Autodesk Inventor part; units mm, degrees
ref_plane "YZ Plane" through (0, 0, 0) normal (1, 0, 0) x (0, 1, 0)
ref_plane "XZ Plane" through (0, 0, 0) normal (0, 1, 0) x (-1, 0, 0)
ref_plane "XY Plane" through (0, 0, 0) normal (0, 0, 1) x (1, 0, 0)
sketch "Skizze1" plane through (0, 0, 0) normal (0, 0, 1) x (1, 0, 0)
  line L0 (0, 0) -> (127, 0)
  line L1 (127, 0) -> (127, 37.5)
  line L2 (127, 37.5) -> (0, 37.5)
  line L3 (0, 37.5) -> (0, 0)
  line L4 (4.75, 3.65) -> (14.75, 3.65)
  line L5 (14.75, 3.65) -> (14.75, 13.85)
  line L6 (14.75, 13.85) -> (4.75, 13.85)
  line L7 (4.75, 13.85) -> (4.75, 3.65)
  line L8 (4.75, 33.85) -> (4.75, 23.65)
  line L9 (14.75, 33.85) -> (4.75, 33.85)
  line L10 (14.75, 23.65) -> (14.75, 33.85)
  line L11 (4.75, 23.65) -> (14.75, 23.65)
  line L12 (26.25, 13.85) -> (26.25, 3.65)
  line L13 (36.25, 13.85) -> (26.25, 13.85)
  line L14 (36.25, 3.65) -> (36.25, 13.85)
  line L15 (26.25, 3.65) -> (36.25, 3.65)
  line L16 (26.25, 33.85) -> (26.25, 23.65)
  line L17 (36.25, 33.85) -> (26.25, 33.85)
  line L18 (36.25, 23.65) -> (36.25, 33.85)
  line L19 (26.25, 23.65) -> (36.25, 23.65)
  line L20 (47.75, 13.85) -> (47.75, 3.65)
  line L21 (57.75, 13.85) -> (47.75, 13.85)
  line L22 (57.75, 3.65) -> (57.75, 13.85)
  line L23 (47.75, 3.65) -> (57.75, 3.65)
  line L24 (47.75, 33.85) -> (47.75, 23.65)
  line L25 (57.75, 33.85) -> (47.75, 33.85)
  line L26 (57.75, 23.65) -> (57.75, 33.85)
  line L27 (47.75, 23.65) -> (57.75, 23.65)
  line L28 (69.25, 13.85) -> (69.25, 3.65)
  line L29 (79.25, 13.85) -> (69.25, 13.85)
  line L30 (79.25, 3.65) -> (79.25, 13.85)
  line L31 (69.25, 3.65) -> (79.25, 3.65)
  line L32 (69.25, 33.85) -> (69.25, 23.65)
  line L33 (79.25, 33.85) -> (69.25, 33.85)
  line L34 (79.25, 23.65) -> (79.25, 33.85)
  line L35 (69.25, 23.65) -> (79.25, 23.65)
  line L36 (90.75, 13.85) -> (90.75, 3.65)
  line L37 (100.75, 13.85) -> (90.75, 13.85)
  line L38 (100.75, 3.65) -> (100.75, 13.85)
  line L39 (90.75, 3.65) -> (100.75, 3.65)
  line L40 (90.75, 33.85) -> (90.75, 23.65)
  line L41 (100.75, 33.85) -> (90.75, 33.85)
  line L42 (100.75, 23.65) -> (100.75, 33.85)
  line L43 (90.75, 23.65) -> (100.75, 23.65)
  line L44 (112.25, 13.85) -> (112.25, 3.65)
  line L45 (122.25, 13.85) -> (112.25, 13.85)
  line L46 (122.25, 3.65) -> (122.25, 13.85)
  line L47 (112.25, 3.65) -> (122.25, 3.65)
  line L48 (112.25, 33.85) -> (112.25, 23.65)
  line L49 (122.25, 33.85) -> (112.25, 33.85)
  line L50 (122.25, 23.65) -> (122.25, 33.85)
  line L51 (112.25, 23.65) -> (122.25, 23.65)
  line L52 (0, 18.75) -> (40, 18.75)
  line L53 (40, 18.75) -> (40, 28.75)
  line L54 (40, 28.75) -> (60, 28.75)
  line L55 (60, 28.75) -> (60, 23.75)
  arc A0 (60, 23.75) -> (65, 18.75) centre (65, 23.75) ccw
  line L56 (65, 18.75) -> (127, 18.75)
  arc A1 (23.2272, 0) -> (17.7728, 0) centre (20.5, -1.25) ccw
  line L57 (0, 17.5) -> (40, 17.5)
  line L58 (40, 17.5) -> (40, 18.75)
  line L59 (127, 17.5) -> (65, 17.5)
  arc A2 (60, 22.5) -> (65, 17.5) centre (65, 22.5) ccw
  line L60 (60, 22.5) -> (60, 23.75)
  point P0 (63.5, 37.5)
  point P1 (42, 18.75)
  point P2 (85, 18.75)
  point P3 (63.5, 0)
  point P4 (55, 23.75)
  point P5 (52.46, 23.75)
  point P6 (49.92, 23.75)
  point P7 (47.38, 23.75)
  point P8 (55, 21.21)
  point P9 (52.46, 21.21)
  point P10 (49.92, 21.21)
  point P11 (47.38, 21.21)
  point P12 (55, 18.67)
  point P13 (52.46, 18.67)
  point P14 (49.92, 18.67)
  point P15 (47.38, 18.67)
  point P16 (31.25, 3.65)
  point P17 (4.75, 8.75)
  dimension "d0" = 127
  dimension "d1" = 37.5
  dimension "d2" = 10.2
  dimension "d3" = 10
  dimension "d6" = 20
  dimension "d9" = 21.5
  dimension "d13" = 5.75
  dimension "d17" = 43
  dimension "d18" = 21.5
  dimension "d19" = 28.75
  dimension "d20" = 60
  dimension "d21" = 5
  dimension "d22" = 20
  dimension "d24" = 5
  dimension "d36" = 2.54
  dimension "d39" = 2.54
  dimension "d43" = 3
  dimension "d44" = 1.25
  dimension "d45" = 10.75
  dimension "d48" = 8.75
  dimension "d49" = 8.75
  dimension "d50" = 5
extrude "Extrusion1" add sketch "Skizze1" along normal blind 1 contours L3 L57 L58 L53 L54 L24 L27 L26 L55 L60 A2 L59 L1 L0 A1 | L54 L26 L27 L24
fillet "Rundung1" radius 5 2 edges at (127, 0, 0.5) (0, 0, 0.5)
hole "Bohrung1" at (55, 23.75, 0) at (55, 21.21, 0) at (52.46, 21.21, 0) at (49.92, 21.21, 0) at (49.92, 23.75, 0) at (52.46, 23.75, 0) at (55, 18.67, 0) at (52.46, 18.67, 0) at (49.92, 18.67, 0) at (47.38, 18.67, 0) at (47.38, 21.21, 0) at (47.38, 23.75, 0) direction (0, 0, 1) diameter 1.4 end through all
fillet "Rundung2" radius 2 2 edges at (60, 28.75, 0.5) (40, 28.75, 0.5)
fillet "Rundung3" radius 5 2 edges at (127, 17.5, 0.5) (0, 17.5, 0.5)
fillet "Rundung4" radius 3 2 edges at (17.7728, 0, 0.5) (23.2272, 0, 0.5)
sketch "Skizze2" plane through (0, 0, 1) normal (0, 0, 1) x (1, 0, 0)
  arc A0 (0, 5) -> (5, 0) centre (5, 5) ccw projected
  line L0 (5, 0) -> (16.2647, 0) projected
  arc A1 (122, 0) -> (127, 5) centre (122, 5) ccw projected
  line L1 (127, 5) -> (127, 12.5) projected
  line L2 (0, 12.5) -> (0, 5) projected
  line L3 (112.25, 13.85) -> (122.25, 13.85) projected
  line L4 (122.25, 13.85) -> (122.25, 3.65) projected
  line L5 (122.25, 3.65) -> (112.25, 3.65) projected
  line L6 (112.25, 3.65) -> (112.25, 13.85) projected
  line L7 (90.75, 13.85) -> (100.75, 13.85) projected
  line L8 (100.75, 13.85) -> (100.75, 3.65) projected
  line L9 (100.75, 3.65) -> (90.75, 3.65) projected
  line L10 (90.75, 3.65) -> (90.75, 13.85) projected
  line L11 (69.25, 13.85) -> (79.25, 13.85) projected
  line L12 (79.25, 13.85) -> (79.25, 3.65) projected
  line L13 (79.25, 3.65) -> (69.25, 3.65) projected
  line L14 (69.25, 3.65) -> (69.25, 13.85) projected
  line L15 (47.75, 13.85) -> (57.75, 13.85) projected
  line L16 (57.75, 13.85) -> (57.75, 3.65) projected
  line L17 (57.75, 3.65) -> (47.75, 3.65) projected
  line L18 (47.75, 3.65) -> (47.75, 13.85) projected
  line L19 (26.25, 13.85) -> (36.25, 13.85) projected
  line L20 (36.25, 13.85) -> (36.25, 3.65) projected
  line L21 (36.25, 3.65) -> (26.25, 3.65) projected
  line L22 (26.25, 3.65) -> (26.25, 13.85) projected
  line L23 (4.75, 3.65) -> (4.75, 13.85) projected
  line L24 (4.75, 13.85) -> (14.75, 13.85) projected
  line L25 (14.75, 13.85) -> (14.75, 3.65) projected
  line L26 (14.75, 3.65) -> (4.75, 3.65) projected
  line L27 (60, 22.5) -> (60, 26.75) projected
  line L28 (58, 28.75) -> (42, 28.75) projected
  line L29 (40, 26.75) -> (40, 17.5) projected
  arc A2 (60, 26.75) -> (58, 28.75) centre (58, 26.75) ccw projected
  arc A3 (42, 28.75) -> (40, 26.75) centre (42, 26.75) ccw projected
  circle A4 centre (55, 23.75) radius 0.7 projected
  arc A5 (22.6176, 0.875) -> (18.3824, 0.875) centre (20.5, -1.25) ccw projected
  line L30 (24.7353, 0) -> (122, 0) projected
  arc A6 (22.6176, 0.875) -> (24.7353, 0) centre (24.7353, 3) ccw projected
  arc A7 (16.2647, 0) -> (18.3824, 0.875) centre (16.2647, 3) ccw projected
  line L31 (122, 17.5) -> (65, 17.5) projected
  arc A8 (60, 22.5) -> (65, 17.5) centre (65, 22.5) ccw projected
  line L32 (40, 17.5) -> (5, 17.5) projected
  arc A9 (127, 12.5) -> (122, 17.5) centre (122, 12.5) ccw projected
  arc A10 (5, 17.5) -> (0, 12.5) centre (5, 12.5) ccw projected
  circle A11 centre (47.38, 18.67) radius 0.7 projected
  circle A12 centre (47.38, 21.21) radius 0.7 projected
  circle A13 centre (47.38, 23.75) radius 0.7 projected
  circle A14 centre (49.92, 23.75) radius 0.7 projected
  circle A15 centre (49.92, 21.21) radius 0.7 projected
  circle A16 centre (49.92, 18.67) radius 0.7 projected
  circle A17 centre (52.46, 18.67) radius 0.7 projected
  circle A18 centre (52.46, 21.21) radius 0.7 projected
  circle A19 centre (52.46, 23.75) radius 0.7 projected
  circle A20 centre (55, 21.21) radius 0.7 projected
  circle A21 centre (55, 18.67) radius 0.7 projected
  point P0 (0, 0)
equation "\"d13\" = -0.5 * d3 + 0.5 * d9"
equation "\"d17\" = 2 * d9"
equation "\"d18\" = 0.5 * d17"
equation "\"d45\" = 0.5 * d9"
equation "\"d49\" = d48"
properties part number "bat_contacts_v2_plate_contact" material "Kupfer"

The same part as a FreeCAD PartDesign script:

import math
import FreeCAD as App
import Part
import Sketcher
from FreeCAD import Vector
Q = App.Units.Quantity


def edges_at(feature, points):
    """Names of the edges that pass closest to the given points."""
    edges = feature.Shape.Edges
    near = lambda p: min(range(len(edges)), key=lambda i: edges[i].distToShape(Part.Vertex(*p))[0])
    return sorted({f"Edge{near(p) + 1}" for p in points})

doc = App.newDocument("Part")
params = doc.addObject("Spreadsheet::Sheet", "Params")
for row, (alias, value) in enumerate([
    ("sketch1_radius", "3 mm"),
    ("sketch1_radius2", "5 mm"),
    ("sketch1_width", "20 mm"),
    ("sketch1_width2", "10 mm"),
    ("sketch1_height", "10.2 mm"),
    ("pad1_length", "1 mm"),
    ("fillet_radius", "5 mm"),
    ("sketch2_diameter", "1.4 mm"),
    ("hole_diameter", "1.4 mm"),
    ("fillet2_radius", "2 mm"),
    ("fillet3_radius", "5 mm"),
    ("fillet4_radius", "3 mm"),
], start=1):
    params.set(f"A{row}", alias)
    params.set(f"B{row}", "=" + value)
    params.setAlias(f"B{row}", alias)

body = doc.addObject("PartDesign::Body", "Body")

# Sketch on XY plane
sketch1 = doc.addObject("Sketcher::SketchObject", "Sketch")
body.addObject(sketch1)
sketch1.AttachmentSupport = (doc.XY_Plane, [""])
sketch1.MapMode = "FlatFace"
sketch1.addGeometry([
    Part.LineSegment(Vector(0, 17.5, 0), Vector(0, 0, 0)),  # 0
    Part.LineSegment(Vector(0, 0, 0), Vector(17.7728, 0, 0)),  # 1
    Part.ArcOfCircle(Part.Circle(Vector(20.5, -1.25, 0), Vector(0, 0, 1), 3.00002), math.radians(24.624144), math.radians(155.375856)),  # 2
    Part.LineSegment(Vector(23.2272, 0, 0), Vector(127, 0, 0)),  # 3
    Part.LineSegment(Vector(127, 0, 0), Vector(127, 17.5, 0)),  # 4
    Part.LineSegment(Vector(127, 17.5, 0), Vector(65, 17.5, 0)),  # 5
    Part.ArcOfCircle(Part.Circle(Vector(65, 22.5, 0), Vector(0, 0, 1), 5), math.radians(180), math.radians(270)),  # 6
    Part.LineSegment(Vector(60, 22.5, 0), Vector(60, 28.75, 0)),  # 7
    Part.LineSegment(Vector(60, 28.75, 0), Vector(40, 28.75, 0)),  # 8
    Part.LineSegment(Vector(40, 28.75, 0), Vector(40, 17.5, 0)),  # 9
    Part.LineSegment(Vector(40, 17.5, 0), Vector(0, 17.5, 0)),  # 10
    Part.LineSegment(Vector(14.75, 3.65, 0), Vector(4.75, 3.65, 0)),  # 11
    Part.LineSegment(Vector(4.75, 3.65, 0), Vector(4.75, 13.85, 0)),  # 12
    Part.LineSegment(Vector(4.75, 13.85, 0), Vector(14.75, 13.85, 0)),  # 13
    Part.LineSegment(Vector(14.75, 13.85, 0), Vector(14.75, 3.65, 0)),  # 14
    Part.LineSegment(Vector(26.25, 3.65, 0), Vector(26.25, 13.85, 0)),  # 15
    Part.LineSegment(Vector(26.25, 13.85, 0), Vector(36.25, 13.85, 0)),  # 16
    Part.LineSegment(Vector(36.25, 13.85, 0), Vector(36.25, 3.65, 0)),  # 17
    Part.LineSegment(Vector(36.25, 3.65, 0), Vector(26.25, 3.65, 0)),  # 18
    Part.LineSegment(Vector(47.75, 3.65, 0), Vector(47.75, 13.85, 0)),  # 19
    Part.LineSegment(Vector(47.75, 13.85, 0), Vector(57.75, 13.85, 0)),  # 20
    Part.LineSegment(Vector(57.75, 13.85, 0), Vector(57.75, 3.65, 0)),  # 21
    Part.LineSegment(Vector(57.75, 3.65, 0), Vector(47.75, 3.65, 0)),  # 22
    Part.LineSegment(Vector(69.25, 3.65, 0), Vector(69.25, 13.85, 0)),  # 23
    Part.LineSegment(Vector(69.25, 13.85, 0), Vector(79.25, 13.85, 0)),  # 24
    Part.LineSegment(Vector(79.25, 13.85, 0), Vector(79.25, 3.65, 0)),  # 25
    Part.LineSegment(Vector(79.25, 3.65, 0), Vector(69.25, 3.65, 0)),  # 26
    Part.LineSegment(Vector(90.75, 3.65, 0), Vector(90.75, 13.85, 0)),  # 27
    Part.LineSegment(Vector(90.75, 13.85, 0), Vector(100.75, 13.85, 0)),  # 28
    Part.LineSegment(Vector(100.75, 13.85, 0), Vector(100.75, 3.65, 0)),  # 29
    Part.LineSegment(Vector(100.75, 3.65, 0), Vector(90.75, 3.65, 0)),  # 30
    Part.LineSegment(Vector(112.25, 3.65, 0), Vector(112.25, 13.85, 0)),  # 31
    Part.LineSegment(Vector(112.25, 13.85, 0), Vector(122.25, 13.85, 0)),  # 32
    Part.LineSegment(Vector(122.25, 13.85, 0), Vector(122.25, 3.65, 0)),  # 33
    Part.LineSegment(Vector(122.25, 3.65, 0), Vector(112.25, 3.65, 0)),  # 34
], False)
sketch1.addConstraint([
    Sketcher.Constraint("Coincident", 0, 2, 1, 1),
    Sketcher.Constraint("Coincident", 1, 2, 2, 2),
    Sketcher.Constraint("Coincident", 2, 1, 3, 1),
    Sketcher.Constraint("Coincident", 3, 2, 4, 1),
    Sketcher.Constraint("Coincident", 4, 2, 5, 1),
    Sketcher.Constraint("Tangent", 5, 2, 6, 2),
    Sketcher.Constraint("Tangent", 6, 1, 7, 1),
    Sketcher.Constraint("Coincident", 7, 2, 8, 1),
    Sketcher.Constraint("Coincident", 8, 2, 9, 1),
    Sketcher.Constraint("Coincident", 9, 2, 10, 1),
    Sketcher.Constraint("Coincident", 10, 2, 0, 1),
    Sketcher.Constraint("Coincident", 11, 2, 12, 1),
    Sketcher.Constraint("Coincident", 12, 2, 13, 1),
    Sketcher.Constraint("Coincident", 13, 2, 14, 1),
    Sketcher.Constraint("Coincident", 14, 2, 11, 1),
    Sketcher.Constraint("Coincident", 15, 2, 16, 1),
    Sketcher.Constraint("Coincident", 16, 2, 17, 1),
    Sketcher.Constraint("Coincident", 17, 2, 18, 1),
    Sketcher.Constraint("Coincident", 18, 2, 15, 1),
    Sketcher.Constraint("Coincident", 19, 2, 20, 1),
    Sketcher.Constraint("Coincident", 20, 2, 21, 1),
    Sketcher.Constraint("Coincident", 21, 2, 22, 1),
    Sketcher.Constraint("Coincident", 22, 2, 19, 1),
    Sketcher.Constraint("Coincident", 23, 2, 24, 1),
    Sketcher.Constraint("Coincident", 24, 2, 25, 1),
    Sketcher.Constraint("Coincident", 25, 2, 26, 1),
    Sketcher.Constraint("Coincident", 26, 2, 23, 1),
    Sketcher.Constraint("Coincident", 27, 2, 28, 1),
    Sketcher.Constraint("Coincident", 28, 2, 29, 1),
    Sketcher.Constraint("Coincident", 29, 2, 30, 1),
    Sketcher.Constraint("Coincident", 30, 2, 27, 1),
    Sketcher.Constraint("Coincident", 31, 2, 32, 1),
    Sketcher.Constraint("Coincident", 32, 2, 33, 1),
    Sketcher.Constraint("Coincident", 33, 2, 34, 1),
    Sketcher.Constraint("Coincident", 34, 2, 31, 1),
    Sketcher.Constraint("Vertical", 0),
    Sketcher.Constraint("Horizontal", 1),
    Sketcher.Constraint("Horizontal", 3),
    Sketcher.Constraint("Vertical", 4),
    Sketcher.Constraint("Horizontal", 5),
    Sketcher.Constraint("Vertical", 7),
    Sketcher.Constraint("Horizontal", 8),
    Sketcher.Constraint("Vertical", 9),
    Sketcher.Constraint("Horizontal", 10),
    Sketcher.Constraint("Horizontal", 11),
    Sketcher.Constraint("Vertical", 12),
    Sketcher.Constraint("Horizontal", 13),
    Sketcher.Constraint("Vertical", 14),
    Sketcher.Constraint("Vertical", 15),
    Sketcher.Constraint("Horizontal", 16),
    Sketcher.Constraint("Vertical", 17),
    Sketcher.Constraint("Horizontal", 18),
    Sketcher.Constraint("Vertical", 19),
    Sketcher.Constraint("Horizontal", 20),
    Sketcher.Constraint("Vertical", 21),
    Sketcher.Constraint("Horizontal", 22),
    Sketcher.Constraint("Vertical", 23),
    Sketcher.Constraint("Horizontal", 24),
    Sketcher.Constraint("Vertical", 25),
    Sketcher.Constraint("Horizontal", 26),
    Sketcher.Constraint("Vertical", 27),
    Sketcher.Constraint("Horizontal", 28),
    Sketcher.Constraint("Vertical", 29),
    Sketcher.Constraint("Horizontal", 30),
    Sketcher.Constraint("Vertical", 31),
    Sketcher.Constraint("Horizontal", 32),
    Sketcher.Constraint("Vertical", 33),
    Sketcher.Constraint("Horizontal", 34),
    Sketcher.Constraint("Coincident", 0, 2, -1, 1),
    Sketcher.Constraint("PointOnObject", 2, 1, -1),
    Sketcher.Constraint("Horizontal", 5, 2, 9, 2),
    Sketcher.Constraint("Horizontal", 13, 2, 15, 2),
    Sketcher.Constraint("Horizontal", 14, 2, 17, 2),
    Sketcher.Constraint("Horizontal", 16, 2, 19, 2),
    Sketcher.Constraint("Horizontal", 18, 2, 21, 2),
    Sketcher.Constraint("Horizontal", 20, 2, 23, 2),
    Sketcher.Constraint("Horizontal", 22, 2, 25, 2),
    Sketcher.Constraint("Horizontal", 24, 2, 27, 2),
    Sketcher.Constraint("Horizontal", 26, 2, 29, 2),
    Sketcher.Constraint("Horizontal", 28, 2, 31, 2),
    Sketcher.Constraint("Horizontal", 30, 2, 33, 2),
    Sketcher.Constraint("Equal", 13, 16),
    Sketcher.Constraint("Equal", 18, 20),
    Sketcher.Constraint("Equal", 22, 24),
    Sketcher.Constraint("Equal", 26, 28),
    Sketcher.Constraint("Equal", 30, 32),
    Sketcher.Constraint("Radius", 2, Q("3 mm")),
    Sketcher.Constraint("Radius", 6, Q("5 mm")),
    Sketcher.Constraint("DistanceX", 8, 2, 8, 1, Q("20 mm")),
    Sketcher.Constraint("DistanceX", 11, 2, 11, 1, Q("10 mm")),
    Sketcher.Constraint("DistanceY", 12, 1, 12, 2, Q("10.2 mm")),
    Sketcher.Constraint("DistanceX", -1, 1, 3, 2, Q("127 mm")),
    Sketcher.Constraint("DistanceX", -1, 1, 6, 1, Q("60 mm")),
    Sketcher.Constraint("DistanceX", 13, 2, 16, 2, Q("21.5 mm")),
    Sketcher.Constraint("DistanceX", 20, 2, 24, 2, Q("21.5 mm")),
    Sketcher.Constraint("DistanceX", 23, 2, 27, 2, Q("21.5 mm")),
    Sketcher.Constraint("DistanceX", 27, 2, 31, 2, Q("21.5 mm")),
    Sketcher.Constraint("DistanceY", 2, 3, -1, 1, Q("1.25 mm")),
    Sketcher.Constraint("DistanceY", -1, 1, 7, 2, Q("28.75 mm")),
    Sketcher.Constraint("DistanceX", 13, 2, 2, 3, Q("5.75 mm")),
    Sketcher.Constraint("DistanceY", 0, 2, 0, 1, Q("17.5 mm")),
    Sketcher.Constraint("DistanceX", -1, 1, 2, 3, Q("20.5 mm")),
    Sketcher.Constraint("DistanceY", 2, 3, 11, 2, Q("4.9 mm")),
    Sketcher.Constraint("DistanceX", 16, 2, 19, 2, Q("11.5 mm")),
])
sketch1.setExpression("Constraints[86]", "Params.sketch1_radius")
sketch1.setExpression("Constraints[87]", "Params.sketch1_radius2")
sketch1.setExpression("Constraints[88]", "Params.sketch1_width")
sketch1.setExpression("Constraints[89]", "Params.sketch1_width2")
sketch1.setExpression("Constraints[90]", "Params.sketch1_height")
pad1 = doc.addObject("PartDesign::Pad", "Pad")
body.addObject(pad1)
pad1.Profile = sketch1
pad1.setExpression("Length", "Params.pad1_length")
doc.recompute()

fillet = doc.addObject("PartDesign::Fillet", "Fillet")
body.addObject(fillet)
fillet.Base = (pad1, edges_at(pad1, [(127, 0, 0.5), (0, 0, 0.5)]))
fillet.setExpression("Radius", "Params.fillet_radius")

# Sketch on XY plane
sketch2 = doc.addObject("Sketcher::SketchObject", "Sketch001")
body.addObject(sketch2)
sketch2.AttachmentSupport = (doc.XY_Plane, [""])
sketch2.MapMode = "FlatFace"
sketch2.addGeometry([
    Part.Circle(Vector(55, 23.75, 0), Vector(0, 0, 1), 0.7),  # 0
    Part.Circle(Vector(55, 21.21, 0), Vector(0, 0, 1), 0.7),  # 1
    Part.Circle(Vector(52.46, 21.21, 0), Vector(0, 0, 1), 0.7),  # 2
    Part.Circle(Vector(49.92, 21.21, 0), Vector(0, 0, 1), 0.7),  # 3
    Part.Circle(Vector(49.92, 23.75, 0), Vector(0, 0, 1), 0.7),  # 4
    Part.Circle(Vector(52.46, 23.75, 0), Vector(0, 0, 1), 0.7),  # 5
    Part.Circle(Vector(55, 18.67, 0), Vector(0, 0, 1), 0.7),  # 6
    Part.Circle(Vector(52.46, 18.67, 0), Vector(0, 0, 1), 0.7),  # 7
    Part.Circle(Vector(49.92, 18.67, 0), Vector(0, 0, 1), 0.7),  # 8
    Part.Circle(Vector(47.38, 18.67, 0), Vector(0, 0, 1), 0.7),  # 9
    Part.Circle(Vector(47.38, 21.21, 0), Vector(0, 0, 1), 0.7),  # 10
    Part.Circle(Vector(47.38, 23.75, 0), Vector(0, 0, 1), 0.7),  # 11
], False)
sketch2.addConstraint([
    Sketcher.Constraint("Equal", 0, 1),
    Sketcher.Constraint("Equal", 1, 2),
    Sketcher.Constraint("Equal", 2, 3),
    Sketcher.Constraint("Equal", 3, 4),
    Sketcher.Constraint("Equal", 4, 5),
    Sketcher.Constraint("Equal", 5, 6),
    Sketcher.Constraint("Equal", 6, 7),
    Sketcher.Constraint("Equal", 7, 8),
    Sketcher.Constraint("Equal", 8, 9),
    Sketcher.Constraint("Equal", 9, 10),
    Sketcher.Constraint("Equal", 10, 11),
    Sketcher.Constraint("Horizontal", 1, 3, 2, 3),
    Sketcher.Constraint("Horizontal", 2, 3, 3, 3),
    Sketcher.Constraint("Horizontal", 0, 3, 4, 3),
    Sketcher.Constraint("Horizontal", 4, 3, 5, 3),
    Sketcher.Constraint("Horizontal", 6, 3, 7, 3),
    Sketcher.Constraint("Horizontal", 7, 3, 8, 3),
    Sketcher.Constraint("Horizontal", 8, 3, 9, 3),
    Sketcher.Constraint("Horizontal", 3, 3, 10, 3),
    Sketcher.Constraint("Horizontal", 5, 3, 11, 3),
    Sketcher.Constraint("Vertical", 0, 3, 1, 3),
    Sketcher.Constraint("Vertical", 3, 3, 4, 3),
    Sketcher.Constraint("Vertical", 2, 3, 5, 3),
    Sketcher.Constraint("Vertical", 1, 3, 6, 3),
    Sketcher.Constraint("Vertical", 5, 3, 7, 3),
    Sketcher.Constraint("Vertical", 4, 3, 8, 3),
    Sketcher.Constraint("Vertical", 9, 3, 10, 3),
    Sketcher.Constraint("Vertical", 10, 3, 11, 3),
    Sketcher.Constraint("Diameter", 0, Q("1.4 mm")),
    Sketcher.Constraint("DistanceX", -1, 1, 0, 3, Q("55 mm")),
    Sketcher.Constraint("DistanceY", -1, 1, 0, 3, Q("23.75 mm")),
    Sketcher.Constraint("DistanceY", -1, 1, 1, 3, Q("21.21 mm")),
    Sketcher.Constraint("DistanceX", -1, 1, 2, 3, Q("52.46 mm")),
    Sketcher.Constraint("DistanceX", -1, 1, 3, 3, Q("49.92 mm")),
    Sketcher.Constraint("DistanceY", -1, 1, 6, 3, Q("18.67 mm")),
    Sketcher.Constraint("DistanceX", -1, 1, 9, 3, Q("47.38 mm")),
])
sketch2.setExpression("Constraints[28]", "Params.sketch2_diameter")
doc.recompute()
hole = doc.addObject("PartDesign::Hole", "Hole")
body.addObject(hole)
hole.Profile = sketch2
hole.ThreadType = "None"
hole.setExpression("Diameter", "Params.hole_diameter")
hole.DepthType = "ThroughAll"
hole.Reversed = True
doc.recompute()

fillet2 = doc.addObject("PartDesign::Fillet", "Fillet001")
body.addObject(fillet2)
fillet2.Base = (hole, edges_at(hole, [(60, 28.75, 0.5), (40, 28.75, 0.5)]))
fillet2.setExpression("Radius", "Params.fillet2_radius")
doc.recompute()

fillet3 = doc.addObject("PartDesign::Fillet", "Fillet002")
body.addObject(fillet3)
fillet3.Base = (fillet2, edges_at(fillet2, [(127, 17.5, 0.5), (0, 17.5, 0.5)]))
fillet3.setExpression("Radius", "Params.fillet3_radius")
doc.recompute()

fillet4 = doc.addObject("PartDesign::Fillet", "Fillet003")
body.addObject(fillet4)
fillet4.Base = (fillet3, edges_at(fillet3, [(17.773, 0, 0.5), (23.227, 0, 0.5)]))
fillet4.setExpression("Radius", "Params.fillet4_radius")

doc.recompute()
